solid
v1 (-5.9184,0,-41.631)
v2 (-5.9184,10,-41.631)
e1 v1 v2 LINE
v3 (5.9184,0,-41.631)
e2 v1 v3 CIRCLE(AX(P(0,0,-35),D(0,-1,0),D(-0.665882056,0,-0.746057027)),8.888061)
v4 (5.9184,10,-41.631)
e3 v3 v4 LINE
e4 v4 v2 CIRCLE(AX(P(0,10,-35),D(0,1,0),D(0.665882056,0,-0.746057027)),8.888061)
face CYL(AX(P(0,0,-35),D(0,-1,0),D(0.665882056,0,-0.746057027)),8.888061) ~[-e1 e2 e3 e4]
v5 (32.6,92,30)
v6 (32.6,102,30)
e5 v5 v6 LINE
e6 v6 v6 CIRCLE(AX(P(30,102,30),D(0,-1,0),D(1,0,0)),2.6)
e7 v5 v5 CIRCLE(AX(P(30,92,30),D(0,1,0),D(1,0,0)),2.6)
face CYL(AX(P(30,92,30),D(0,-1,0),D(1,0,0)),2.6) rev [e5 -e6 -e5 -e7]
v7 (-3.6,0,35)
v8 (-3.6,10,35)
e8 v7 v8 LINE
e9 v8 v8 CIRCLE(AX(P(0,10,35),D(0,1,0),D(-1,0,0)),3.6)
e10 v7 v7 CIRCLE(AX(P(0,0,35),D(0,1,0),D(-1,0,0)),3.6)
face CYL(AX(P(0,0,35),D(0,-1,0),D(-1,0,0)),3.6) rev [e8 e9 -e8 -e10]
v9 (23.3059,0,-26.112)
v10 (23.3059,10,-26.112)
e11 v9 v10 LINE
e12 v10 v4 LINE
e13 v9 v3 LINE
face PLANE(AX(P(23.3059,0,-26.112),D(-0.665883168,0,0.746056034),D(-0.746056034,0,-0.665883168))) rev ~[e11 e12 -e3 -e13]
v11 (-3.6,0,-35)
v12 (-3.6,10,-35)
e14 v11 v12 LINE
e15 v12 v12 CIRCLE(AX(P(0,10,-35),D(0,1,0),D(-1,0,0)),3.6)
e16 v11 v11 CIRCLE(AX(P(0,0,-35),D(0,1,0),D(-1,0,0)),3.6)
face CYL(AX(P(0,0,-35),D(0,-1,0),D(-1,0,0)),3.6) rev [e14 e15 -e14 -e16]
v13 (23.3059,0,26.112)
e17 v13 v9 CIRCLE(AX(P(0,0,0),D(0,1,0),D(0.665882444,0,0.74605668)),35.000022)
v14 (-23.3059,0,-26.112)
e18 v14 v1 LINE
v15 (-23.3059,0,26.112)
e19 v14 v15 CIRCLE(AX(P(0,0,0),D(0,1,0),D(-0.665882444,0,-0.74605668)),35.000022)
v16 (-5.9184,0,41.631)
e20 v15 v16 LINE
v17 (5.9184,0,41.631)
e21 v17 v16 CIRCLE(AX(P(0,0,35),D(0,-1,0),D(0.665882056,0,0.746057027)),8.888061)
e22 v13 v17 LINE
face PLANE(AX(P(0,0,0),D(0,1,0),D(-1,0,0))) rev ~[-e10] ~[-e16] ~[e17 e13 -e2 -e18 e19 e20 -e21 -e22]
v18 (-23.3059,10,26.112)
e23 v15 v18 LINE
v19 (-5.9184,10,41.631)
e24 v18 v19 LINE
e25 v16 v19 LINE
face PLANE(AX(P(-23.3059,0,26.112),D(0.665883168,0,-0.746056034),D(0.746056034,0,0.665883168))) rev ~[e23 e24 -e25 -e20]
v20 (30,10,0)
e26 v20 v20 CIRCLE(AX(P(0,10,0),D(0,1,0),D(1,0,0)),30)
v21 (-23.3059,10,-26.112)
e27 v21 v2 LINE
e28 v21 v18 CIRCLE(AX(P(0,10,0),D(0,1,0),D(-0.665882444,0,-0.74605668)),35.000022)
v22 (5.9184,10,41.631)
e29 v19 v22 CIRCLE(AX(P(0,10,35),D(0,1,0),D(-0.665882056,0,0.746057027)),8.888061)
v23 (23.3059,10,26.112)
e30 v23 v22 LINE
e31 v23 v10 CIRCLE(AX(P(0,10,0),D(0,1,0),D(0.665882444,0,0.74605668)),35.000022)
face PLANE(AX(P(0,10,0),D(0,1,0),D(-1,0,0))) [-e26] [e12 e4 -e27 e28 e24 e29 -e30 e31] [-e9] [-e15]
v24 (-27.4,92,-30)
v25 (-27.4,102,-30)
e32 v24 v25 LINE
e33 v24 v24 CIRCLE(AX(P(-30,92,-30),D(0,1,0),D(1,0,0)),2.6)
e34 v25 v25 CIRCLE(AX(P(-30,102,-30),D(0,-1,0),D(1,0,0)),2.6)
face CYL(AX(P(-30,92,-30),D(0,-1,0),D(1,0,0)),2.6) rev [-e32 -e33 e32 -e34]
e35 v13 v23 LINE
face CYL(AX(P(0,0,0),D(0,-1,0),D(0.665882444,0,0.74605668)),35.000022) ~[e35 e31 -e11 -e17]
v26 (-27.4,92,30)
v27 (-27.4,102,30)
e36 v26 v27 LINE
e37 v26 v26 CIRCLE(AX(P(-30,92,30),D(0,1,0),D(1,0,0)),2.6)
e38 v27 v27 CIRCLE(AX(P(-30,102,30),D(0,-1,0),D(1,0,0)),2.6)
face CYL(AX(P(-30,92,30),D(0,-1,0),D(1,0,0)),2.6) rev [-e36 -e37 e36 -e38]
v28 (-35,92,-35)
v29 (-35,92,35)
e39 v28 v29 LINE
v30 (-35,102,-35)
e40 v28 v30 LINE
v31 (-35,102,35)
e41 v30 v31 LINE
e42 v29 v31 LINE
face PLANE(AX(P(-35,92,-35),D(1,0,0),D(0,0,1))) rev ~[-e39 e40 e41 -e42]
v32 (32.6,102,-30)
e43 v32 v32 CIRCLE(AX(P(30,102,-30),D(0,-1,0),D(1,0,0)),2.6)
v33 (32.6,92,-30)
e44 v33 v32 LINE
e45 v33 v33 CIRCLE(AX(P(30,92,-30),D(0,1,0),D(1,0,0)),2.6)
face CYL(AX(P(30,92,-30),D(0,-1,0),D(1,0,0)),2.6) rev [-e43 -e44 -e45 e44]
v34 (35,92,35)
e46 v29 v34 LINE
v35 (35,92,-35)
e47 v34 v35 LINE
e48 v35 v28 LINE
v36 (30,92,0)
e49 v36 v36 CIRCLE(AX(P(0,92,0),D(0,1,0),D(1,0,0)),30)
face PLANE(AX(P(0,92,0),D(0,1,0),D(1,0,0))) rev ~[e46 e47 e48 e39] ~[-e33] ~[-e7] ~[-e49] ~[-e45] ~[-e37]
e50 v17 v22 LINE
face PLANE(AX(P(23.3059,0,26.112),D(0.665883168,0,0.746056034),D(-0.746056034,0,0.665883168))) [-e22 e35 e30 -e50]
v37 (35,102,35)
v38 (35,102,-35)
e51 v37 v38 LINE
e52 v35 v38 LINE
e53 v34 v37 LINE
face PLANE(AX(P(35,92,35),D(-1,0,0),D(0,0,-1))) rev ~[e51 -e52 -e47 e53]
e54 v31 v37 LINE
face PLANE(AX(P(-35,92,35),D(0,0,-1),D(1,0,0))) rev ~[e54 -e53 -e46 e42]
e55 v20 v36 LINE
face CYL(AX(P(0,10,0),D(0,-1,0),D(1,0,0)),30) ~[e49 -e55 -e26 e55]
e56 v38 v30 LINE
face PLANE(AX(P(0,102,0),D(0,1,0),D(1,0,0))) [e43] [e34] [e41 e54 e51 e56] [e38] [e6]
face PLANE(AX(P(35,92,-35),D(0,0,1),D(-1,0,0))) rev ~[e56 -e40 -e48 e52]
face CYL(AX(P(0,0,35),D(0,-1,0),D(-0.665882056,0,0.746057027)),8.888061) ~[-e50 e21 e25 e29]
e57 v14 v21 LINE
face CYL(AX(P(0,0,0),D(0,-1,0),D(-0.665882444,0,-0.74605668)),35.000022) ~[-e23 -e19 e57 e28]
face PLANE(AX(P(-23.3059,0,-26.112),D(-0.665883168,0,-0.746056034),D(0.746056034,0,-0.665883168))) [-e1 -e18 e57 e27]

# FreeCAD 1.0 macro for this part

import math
import FreeCAD as App
import Part
import Sketcher

V = App.Vector
Q = App.Units.Quantity


def add_polygon(sketch, points):
    """Adds a closed chain of lines whose ends are joined by coincident constraints."""
    first, n = sketch.GeometryCount, len(points)
    for a, b in zip(points, points[1:] + points[:1]):
        sketch.addGeometry(Part.LineSegment(App.Vector(*a, 0), App.Vector(*b, 0)), False)
    for i in range(n):
        sketch.addConstraint(Sketcher.Constraint("Coincident", first + i, 2, first + (i + 1) % n, 1))

doc = App.newDocument("Part")
params = doc.addObject("Spreadsheet::Sheet", "Params")
for row, (alias, value) in enumerate([
    ("sketch1_diameter", "7.2 mm"),
    ("sketch1_radius", "35 mm"),
    ("pad1_length", "10 mm"),
    ("sketch2_diameter", "60 mm"),
    ("pad2_length", "82 mm"),
    ("sketch3_diameter", "5.2 mm"),
    ("sketch3_width", "70 mm"),
    ("pad3_length", "10 mm"),
], start=1):
    params.set(f"A{row}", alias)
    params.set(f"B{row}", "=" + value)
    params.setAlias(f"B{row}", alias)

body = doc.addObject("PartDesign::Body", "Body")

sketch1 = doc.addObject("Sketcher::SketchObject", "Sketch")
body.addObject(sketch1)
sketch1.AttachmentSupport = (doc.XZ_Plane, [""])
sketch1.MapMode = "FlatFace"
sketch1.addGeometry(Part.ArcOfCircle(Part.Circle(V(0, 0, 0), V(0, 0, 1), 35), math.radians(132), math.radians(228)), False)
sketch1.addGeometry(Part.LineSegment(V(-23.3, 26.1, 0), V(-5.9, 41.6, 0)), False)
sketch1.addGeometry(Part.ArcOfCircle(Part.Circle(V(0, 35, 0), V(0, 0, 1), 8.9), math.radians(48), math.radians(132)), False)
sketch1.addGeometry(Part.LineSegment(V(5.9, 41.6, 0), V(23.3, 26.1, 0)), False)
sketch1.addGeometry(Part.ArcOfCircle(Part.Circle(V(0, 0, 0), V(0, 0, 1), 35), math.radians(-48), math.radians(48)), False)
sketch1.addGeometry(Part.LineSegment(V(23.3, -26.1, 0), V(5.9, -41.6, 0)), False)
sketch1.addGeometry(Part.ArcOfCircle(Part.Circle(V(0, -35, 0), V(0, 0, 1), 8.9), math.radians(-132), math.radians(-48)), False)
sketch1.addGeometry(Part.LineSegment(V(-5.9, -41.6, 0), V(-23.3, -26.1, 0)), False)
sketch1.addGeometry(Part.Circle(V(0, -35, 0), V(0, 0, 1), 3.6), False)
sketch1.addGeometry(Part.Circle(V(0, 35, 0), V(0, 0, 1), 3.6), False)
sketch1.addConstraint(Sketcher.Constraint("Tangent", 0, 1, 1, 1))
sketch1.addConstraint(Sketcher.Constraint("Tangent", 1, 2, 2, 2))
sketch1.addConstraint(Sketcher.Constraint("Tangent", 2, 1, 3, 1))
sketch1.addConstraint(Sketcher.Constraint("Tangent", 3, 2, 4, 2))
sketch1.addConstraint(Sketcher.Constraint("Tangent", 4, 1, 5, 1))
sketch1.addConstraint(Sketcher.Constraint("Tangent", 5, 2, 6, 2))
sketch1.addConstraint(Sketcher.Constraint("Tangent", 6, 1, 7, 1))
sketch1.addConstraint(Sketcher.Constraint("Tangent", 7, 2, 0, 2))
sketch1.addConstraint(Sketcher.Constraint("Coincident", 0, 3, -1, 1))
sketch1.addConstraint(Sketcher.Constraint("Coincident", 4, 3, -1, 1))
sketch1.addConstraint(Sketcher.Constraint("Coincident", 8, 3, 6, 3))
sketch1.addConstraint(Sketcher.Constraint("Coincident", 9, 3, 2, 3))
sketch1.addConstraint(Sketcher.Constraint("Equal", 0, 4))
sketch1.addConstraint(Sketcher.Constraint("Equal", 2, 6))
sketch1.addConstraint(Sketcher.Constraint("Equal", 8, 9))
sketch1.addConstraint(Sketcher.Constraint("Symmetric", 2, 3, 6, 3, -1, 1))
sketch1.addConstraint(Sketcher.Constraint("PointOnObject", 2, 3, -2))
sketch1.addConstraint(Sketcher.Constraint("Diameter", 8, Q("7.2 mm")))
sketch1.addConstraint(Sketcher.Constraint("Radius", 0, Q("35 mm")))
sketch1.addConstraint(Sketcher.Constraint("DistanceY", -1, 1, 2, 3, Q("35 mm")))
sketch1.addConstraint(Sketcher.Constraint("Radius", 2, Q("8.888 mm")))
sketch1.setExpression("Constraints[17]", "Params.sketch1_diameter")
sketch1.setExpression("Constraints[18]", "Params.sketch1_radius")
pad1 = doc.addObject("PartDesign::Pad", "Pad")
body.addObject(pad1)
pad1.Profile = sketch1
pad1.setExpression("Length", "Params.pad1_length")
pad1.Reversed = True

sketch2 = doc.addObject("Sketcher::SketchObject", "Sketch001")
body.addObject(sketch2)
sketch2.AttachmentSupport = (doc.XZ_Plane, [""])
sketch2.MapMode = "FlatFace"
sketch2.AttachmentOffset = App.Placement(V(0, 0, -10), App.Rotation())
sketch2.addGeometry(Part.Circle(V(0, 0, 0), V(0, 0, 1), 30), False)
sketch2.addConstraint(Sketcher.Constraint("Coincident", 0, 3, -1, 1))
sketch2.addConstraint(Sketcher.Constraint("Diameter", 0, Q("60 mm")))
sketch2.setExpression("Constraints[1]", "Params.sketch2_diameter")
pad2 = doc.addObject("PartDesign::Pad", "Pad001")
body.addObject(pad2)
pad2.Profile = sketch2
pad2.setExpression("Length", "Params.pad2_length")
pad2.Reversed = True

sketch3 = doc.addObject("Sketcher::SketchObject", "Sketch002")
body.addObject(sketch3)
sketch3.AttachmentSupport = (doc.XZ_Plane, [""])
sketch3.MapMode = "FlatFace"
sketch3.AttachmentOffset = App.Placement(V(0, 0, -92), App.Rotation())
add_polygon(sketch3, [(-35, -35), (-35, 35), (35, 35), (35, -35)])
sketch3.addGeometry(Part.Circle(V(-30, -30, 0), V(0, 0, 1), 2.6), False)
sketch3.addGeometry(Part.Circle(V(-30, 30, 0), V(0, 0, 1), 2.6), False)
sketch3.addGeometry(Part.Circle(V(30, 30, 0), V(0, 0, 1), 2.6), False)
sketch3.addGeometry(Part.Circle(V(30, -30, 0), V(0, 0, 1), 2.6), False)
sketch3.addConstraint(Sketcher.Constraint("Vertical", 0))
sketch3.addConstraint(Sketcher.Constraint("Horizontal", 1))
sketch3.addConstraint(Sketcher.Constraint("Vertical", 2))
sketch3.addConstraint(Sketcher.Constraint("Horizontal", 3))
sketch3.addConstraint(Sketcher.Constraint("Equal", 4, 5))
sketch3.addConstraint(Sketcher.Constraint("Equal", 5, 6))
sketch3.addConstraint(Sketcher.Constraint("Equal", 6, 7))
sketch3.addConstraint(Sketcher.Constraint("Symmetric", 4, 3, 6, 3, -1, 1))
sketch3.addConstraint(Sketcher.Constraint("Symmetric", 5, 3, 7, 3, -1, 1))
sketch3.addConstraint(Sketcher.Constraint("Symmetric", 0, 2, 2, 2, -1, 1))
sketch3.addConstraint(Sketcher.Constraint("Symmetric", 5, 3, 6, 3, -2))
sketch3.addConstraint(Sketcher.Constraint("Equal", 3, 0))
sketch3.addConstraint(Sketcher.Constraint("Diameter", 4, Q("5.2 mm")))
sketch3.addConstraint(Sketcher.Constraint("DistanceX", 1, 1, 1, 2, Q("70 mm")))
sketch3.addConstraint(Sketcher.Constraint("DistanceY", 4, 3, 5, 3, Q("60 mm")))
sketch3.addConstraint(Sketcher.Constraint("DistanceX", 5, 3, 6, 3, Q("60 mm")))
sketch3.setExpression("Constraints[16]", "Params.sketch3_diameter")
sketch3.setExpression("Constraints[17]", "Params.sketch3_width")
pad3 = doc.addObject("PartDesign::Pad", "Pad002")
body.addObject(pad3)
pad3.Profile = sketch3
pad3.setExpression("Length", "Params.pad3_length")
pad3.Reversed = True

doc.recompute()
